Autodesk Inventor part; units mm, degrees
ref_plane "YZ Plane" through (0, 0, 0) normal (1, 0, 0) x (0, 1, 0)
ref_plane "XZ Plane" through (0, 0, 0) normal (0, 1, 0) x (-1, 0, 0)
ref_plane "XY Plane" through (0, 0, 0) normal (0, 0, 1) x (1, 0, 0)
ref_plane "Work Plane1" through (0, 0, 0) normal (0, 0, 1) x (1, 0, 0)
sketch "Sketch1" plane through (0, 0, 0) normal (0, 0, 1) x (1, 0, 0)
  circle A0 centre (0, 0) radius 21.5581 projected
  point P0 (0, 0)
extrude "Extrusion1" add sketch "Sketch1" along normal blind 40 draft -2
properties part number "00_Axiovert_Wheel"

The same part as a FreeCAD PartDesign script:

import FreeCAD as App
import Part
import Sketcher
from FreeCAD import Vector

doc = App.newDocument("Part")
params = doc.addObject("Spreadsheet::Sheet", "Params")
for row, (alias, value) in enumerate([
    ("pad1_length", "40 mm"),
    ("pad1_taper", "-2 deg"),
], start=1):
    params.set(f"A{row}", alias)
    params.set(f"B{row}", "=" + value)
    params.setAlias(f"B{row}", alias)

body = doc.addObject("PartDesign::Body", "Body")

# Sketch on XY plane
sketch1 = body.newObject("Sketcher::SketchObject", "Sketch")
sketch1.AttachmentSupport = (doc.getObject("XY_Plane"), [""])
sketch1.MapMode = "FlatFace"
sketch1.addGeometry(Part.Circle(Vector(0, 0, 0), Vector(0, 0, 1), 22), False)
sketch1.addConstraint([
    Sketcher.Constraint("Coincident", 0, 3, -1, 1),
    Sketcher.Constraint("Diameter", 0, 43.1162),
])
pad1 = body.newObject("PartDesign::Pad", "Pad")
pad1.Profile = sketch1
pad1.setExpression("Length", "Params.pad1_length")
pad1.setExpression("TaperAngle", "Params.pad1_taper")

doc.recompute()
